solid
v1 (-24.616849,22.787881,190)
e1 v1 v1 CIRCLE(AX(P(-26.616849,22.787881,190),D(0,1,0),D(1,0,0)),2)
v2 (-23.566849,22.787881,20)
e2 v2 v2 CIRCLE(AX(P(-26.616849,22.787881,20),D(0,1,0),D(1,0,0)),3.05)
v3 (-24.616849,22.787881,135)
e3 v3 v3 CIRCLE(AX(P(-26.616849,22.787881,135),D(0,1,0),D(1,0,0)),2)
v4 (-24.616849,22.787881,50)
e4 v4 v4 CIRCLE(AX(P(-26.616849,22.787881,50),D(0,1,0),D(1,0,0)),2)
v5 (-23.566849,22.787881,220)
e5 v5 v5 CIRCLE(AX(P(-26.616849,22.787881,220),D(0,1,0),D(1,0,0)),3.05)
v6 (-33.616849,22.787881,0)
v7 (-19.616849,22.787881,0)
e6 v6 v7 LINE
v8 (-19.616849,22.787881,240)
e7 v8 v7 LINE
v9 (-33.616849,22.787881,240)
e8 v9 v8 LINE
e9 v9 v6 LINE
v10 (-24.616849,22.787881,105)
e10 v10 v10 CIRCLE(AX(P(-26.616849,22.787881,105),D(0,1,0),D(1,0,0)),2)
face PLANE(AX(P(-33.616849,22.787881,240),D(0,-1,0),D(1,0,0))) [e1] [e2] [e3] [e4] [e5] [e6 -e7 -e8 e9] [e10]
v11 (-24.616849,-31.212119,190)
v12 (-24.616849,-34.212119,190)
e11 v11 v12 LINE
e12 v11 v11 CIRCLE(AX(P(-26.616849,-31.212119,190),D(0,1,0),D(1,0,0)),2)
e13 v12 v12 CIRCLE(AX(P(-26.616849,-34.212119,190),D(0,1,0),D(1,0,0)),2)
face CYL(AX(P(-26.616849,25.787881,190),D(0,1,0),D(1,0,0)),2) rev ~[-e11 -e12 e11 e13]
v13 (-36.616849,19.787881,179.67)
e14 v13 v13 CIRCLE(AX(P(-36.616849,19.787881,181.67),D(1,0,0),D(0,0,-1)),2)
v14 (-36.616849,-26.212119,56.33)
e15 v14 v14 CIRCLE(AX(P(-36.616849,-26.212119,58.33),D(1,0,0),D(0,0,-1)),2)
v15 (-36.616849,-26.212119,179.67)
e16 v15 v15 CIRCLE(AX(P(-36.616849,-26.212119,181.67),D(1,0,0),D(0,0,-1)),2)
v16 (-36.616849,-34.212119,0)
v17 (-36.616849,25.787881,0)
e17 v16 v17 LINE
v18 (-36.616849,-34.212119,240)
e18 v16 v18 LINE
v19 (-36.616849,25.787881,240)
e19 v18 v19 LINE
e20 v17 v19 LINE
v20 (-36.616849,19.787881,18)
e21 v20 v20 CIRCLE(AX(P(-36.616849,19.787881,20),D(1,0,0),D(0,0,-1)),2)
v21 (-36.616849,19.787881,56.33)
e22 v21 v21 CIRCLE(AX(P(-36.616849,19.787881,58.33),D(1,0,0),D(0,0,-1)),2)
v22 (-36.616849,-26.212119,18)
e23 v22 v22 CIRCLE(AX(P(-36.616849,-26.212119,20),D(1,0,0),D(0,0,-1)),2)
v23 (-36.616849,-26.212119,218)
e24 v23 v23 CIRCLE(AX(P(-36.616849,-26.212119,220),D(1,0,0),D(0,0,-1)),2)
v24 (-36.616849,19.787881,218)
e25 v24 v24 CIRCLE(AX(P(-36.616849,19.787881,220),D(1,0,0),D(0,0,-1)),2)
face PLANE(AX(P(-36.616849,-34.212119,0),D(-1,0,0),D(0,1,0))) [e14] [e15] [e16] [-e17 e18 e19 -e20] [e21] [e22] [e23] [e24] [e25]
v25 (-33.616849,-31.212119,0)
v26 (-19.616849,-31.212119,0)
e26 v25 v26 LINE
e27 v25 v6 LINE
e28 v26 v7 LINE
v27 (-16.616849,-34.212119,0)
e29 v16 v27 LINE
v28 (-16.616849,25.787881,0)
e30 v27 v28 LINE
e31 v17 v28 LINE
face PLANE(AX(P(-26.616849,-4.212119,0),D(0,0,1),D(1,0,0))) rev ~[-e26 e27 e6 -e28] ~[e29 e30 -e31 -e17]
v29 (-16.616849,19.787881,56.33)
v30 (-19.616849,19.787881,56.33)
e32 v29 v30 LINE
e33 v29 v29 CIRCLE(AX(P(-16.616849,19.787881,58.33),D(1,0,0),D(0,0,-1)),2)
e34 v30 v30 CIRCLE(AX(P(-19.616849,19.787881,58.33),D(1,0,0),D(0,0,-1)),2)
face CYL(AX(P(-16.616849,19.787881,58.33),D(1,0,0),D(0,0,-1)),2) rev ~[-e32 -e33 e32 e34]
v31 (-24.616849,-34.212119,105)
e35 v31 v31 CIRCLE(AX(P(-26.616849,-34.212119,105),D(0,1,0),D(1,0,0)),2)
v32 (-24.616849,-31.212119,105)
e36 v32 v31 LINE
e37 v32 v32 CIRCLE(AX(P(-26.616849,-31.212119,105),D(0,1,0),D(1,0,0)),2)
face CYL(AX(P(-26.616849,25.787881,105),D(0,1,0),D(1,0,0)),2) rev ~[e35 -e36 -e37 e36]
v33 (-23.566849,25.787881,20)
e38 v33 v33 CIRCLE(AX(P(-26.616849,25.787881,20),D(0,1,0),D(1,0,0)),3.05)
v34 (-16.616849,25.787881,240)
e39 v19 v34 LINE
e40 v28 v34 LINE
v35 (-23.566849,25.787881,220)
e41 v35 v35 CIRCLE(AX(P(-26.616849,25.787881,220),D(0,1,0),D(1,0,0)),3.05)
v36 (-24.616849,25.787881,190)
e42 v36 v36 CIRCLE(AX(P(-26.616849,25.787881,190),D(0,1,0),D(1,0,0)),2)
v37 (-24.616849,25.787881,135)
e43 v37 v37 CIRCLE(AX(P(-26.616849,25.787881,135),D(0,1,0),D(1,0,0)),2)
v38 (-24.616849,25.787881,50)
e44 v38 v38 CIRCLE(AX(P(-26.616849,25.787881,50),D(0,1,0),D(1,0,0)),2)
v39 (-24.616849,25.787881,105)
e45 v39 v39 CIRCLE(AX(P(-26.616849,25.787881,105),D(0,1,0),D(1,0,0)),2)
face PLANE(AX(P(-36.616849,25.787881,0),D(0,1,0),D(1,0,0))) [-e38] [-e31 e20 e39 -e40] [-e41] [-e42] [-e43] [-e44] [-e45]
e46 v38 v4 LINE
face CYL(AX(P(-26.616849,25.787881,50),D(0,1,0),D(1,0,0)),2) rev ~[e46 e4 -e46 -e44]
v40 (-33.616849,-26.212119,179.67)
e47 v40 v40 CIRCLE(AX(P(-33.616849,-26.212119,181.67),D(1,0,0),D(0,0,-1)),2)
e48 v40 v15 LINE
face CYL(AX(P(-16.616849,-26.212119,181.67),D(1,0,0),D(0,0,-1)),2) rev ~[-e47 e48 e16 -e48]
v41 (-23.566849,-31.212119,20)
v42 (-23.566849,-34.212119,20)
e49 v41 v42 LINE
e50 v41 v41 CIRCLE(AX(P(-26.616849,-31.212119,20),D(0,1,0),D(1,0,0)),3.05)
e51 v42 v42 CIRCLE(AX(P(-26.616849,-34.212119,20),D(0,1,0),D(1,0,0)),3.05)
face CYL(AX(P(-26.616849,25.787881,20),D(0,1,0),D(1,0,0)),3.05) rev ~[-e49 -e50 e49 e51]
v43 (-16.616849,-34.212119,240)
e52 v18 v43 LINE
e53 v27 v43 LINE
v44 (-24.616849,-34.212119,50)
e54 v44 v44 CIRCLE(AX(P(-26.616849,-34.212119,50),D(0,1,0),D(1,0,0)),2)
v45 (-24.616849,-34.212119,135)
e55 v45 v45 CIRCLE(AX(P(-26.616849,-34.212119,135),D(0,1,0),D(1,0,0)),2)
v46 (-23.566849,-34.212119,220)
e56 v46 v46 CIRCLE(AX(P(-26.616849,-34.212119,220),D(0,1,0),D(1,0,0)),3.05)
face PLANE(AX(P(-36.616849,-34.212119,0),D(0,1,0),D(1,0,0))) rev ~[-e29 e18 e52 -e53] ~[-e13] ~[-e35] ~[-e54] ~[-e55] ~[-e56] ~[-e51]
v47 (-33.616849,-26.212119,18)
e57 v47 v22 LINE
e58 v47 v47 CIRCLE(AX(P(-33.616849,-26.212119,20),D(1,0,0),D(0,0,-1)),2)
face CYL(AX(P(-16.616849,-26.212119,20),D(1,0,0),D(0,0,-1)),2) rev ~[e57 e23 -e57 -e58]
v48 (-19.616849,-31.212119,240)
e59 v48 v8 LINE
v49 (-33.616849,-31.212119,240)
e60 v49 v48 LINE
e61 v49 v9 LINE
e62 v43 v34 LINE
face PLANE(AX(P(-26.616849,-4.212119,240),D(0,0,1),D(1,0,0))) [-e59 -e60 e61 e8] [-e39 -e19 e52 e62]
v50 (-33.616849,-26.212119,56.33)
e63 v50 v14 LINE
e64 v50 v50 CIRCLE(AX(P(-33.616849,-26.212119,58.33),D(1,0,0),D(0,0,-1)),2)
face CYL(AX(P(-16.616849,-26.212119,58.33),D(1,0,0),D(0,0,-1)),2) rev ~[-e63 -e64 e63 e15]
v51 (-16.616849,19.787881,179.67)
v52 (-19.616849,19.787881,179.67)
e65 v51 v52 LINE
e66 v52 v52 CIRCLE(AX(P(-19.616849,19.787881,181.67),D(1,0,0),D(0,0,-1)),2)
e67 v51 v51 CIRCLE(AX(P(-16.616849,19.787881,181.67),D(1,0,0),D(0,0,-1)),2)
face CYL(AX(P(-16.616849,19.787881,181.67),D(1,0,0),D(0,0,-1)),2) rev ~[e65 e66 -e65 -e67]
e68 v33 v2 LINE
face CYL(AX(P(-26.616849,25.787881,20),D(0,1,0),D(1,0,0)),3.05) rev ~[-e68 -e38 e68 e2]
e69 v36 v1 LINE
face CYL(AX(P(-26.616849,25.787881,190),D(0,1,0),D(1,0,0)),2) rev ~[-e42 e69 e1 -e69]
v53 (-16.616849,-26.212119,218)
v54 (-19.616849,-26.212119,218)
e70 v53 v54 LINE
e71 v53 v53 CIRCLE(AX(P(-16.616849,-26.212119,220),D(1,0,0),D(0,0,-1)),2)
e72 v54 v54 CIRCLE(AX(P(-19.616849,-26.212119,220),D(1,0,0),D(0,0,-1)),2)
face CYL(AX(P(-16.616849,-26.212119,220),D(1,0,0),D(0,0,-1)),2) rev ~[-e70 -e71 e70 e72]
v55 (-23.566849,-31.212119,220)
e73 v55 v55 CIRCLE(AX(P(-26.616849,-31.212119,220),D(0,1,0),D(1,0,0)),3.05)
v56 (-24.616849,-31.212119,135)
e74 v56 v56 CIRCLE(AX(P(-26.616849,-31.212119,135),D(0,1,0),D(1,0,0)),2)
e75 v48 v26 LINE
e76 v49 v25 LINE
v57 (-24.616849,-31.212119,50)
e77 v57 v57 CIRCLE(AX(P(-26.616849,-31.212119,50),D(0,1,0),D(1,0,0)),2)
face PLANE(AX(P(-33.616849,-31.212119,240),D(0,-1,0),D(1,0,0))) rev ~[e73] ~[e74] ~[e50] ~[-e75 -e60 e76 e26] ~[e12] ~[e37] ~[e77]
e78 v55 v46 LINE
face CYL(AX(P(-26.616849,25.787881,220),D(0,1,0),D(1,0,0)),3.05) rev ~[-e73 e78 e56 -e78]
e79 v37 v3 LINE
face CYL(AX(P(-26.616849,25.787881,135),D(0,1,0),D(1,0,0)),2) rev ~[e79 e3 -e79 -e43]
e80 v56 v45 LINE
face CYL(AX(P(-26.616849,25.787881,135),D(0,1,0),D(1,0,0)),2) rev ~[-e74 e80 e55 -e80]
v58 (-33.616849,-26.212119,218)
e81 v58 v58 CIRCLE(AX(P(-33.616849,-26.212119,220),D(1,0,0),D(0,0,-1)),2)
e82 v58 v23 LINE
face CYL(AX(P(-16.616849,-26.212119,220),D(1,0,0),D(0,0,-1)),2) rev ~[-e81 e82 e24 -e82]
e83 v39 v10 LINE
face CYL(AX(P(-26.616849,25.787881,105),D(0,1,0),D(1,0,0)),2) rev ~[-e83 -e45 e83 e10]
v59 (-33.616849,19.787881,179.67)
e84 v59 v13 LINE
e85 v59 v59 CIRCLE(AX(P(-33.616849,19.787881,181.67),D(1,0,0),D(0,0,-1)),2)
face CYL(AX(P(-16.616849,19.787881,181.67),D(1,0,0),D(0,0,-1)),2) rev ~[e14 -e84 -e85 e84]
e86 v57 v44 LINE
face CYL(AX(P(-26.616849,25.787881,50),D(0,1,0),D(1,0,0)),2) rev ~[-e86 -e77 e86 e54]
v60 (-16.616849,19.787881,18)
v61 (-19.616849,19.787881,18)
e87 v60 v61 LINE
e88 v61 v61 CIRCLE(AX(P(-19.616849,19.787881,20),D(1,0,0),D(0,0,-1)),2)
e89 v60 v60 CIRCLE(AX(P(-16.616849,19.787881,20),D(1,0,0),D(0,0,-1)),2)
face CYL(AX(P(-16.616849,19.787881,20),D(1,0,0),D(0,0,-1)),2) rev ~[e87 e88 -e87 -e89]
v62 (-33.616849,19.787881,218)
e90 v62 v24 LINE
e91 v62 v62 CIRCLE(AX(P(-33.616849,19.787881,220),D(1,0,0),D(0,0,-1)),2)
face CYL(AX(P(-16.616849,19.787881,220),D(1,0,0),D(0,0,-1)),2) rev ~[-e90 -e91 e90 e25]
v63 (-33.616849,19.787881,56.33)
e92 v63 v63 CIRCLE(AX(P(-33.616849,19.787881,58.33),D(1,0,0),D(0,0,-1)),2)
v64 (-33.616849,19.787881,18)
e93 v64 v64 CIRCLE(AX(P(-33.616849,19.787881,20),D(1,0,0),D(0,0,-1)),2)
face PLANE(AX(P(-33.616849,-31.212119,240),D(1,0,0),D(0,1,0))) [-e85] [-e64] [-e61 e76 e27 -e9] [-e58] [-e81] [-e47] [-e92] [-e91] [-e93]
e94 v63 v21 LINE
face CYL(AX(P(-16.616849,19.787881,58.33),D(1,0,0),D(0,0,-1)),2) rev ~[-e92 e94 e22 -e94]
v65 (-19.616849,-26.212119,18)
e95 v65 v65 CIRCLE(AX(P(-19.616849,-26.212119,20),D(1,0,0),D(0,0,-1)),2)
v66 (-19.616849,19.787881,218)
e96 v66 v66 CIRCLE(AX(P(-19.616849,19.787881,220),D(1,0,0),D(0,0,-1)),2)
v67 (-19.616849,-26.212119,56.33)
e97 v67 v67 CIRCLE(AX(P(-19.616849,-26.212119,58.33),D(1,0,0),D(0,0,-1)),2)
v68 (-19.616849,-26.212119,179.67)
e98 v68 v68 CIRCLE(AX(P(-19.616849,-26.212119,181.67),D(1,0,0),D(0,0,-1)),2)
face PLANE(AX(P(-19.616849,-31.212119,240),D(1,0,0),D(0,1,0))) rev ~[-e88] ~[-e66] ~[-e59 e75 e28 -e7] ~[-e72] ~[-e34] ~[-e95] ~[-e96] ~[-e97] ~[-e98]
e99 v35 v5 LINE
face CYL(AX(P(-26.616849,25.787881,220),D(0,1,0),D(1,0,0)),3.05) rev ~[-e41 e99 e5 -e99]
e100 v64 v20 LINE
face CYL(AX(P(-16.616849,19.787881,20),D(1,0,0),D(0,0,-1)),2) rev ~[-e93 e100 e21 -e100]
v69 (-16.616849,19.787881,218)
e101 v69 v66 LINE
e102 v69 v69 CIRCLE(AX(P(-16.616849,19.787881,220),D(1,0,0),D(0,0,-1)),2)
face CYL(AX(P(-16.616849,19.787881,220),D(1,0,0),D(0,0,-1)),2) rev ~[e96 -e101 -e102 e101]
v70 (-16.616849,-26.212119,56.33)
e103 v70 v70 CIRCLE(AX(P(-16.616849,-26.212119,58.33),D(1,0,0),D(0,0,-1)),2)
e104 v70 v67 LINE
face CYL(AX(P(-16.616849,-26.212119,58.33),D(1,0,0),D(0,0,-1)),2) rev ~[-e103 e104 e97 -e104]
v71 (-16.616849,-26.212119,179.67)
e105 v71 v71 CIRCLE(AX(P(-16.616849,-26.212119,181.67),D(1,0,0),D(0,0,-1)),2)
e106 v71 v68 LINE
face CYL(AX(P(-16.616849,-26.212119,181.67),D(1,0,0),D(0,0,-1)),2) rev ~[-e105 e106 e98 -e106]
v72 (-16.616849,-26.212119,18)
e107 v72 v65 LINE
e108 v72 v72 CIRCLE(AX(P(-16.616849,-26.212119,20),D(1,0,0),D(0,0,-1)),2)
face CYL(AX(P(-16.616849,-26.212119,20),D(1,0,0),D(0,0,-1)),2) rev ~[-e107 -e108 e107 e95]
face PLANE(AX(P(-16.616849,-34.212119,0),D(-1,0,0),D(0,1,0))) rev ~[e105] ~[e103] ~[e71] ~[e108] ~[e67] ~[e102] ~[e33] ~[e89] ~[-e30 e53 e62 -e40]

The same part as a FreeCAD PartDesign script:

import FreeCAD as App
import Part
import Sketcher

V = App.Vector
Q = App.Units.Quantity

doc = App.newDocument("Part")
body = doc.addObject("PartDesign::Body", "Body")

sketch1 = body.newObject("Sketcher::SketchObject", "Sketch")
sketch1.AttachmentSupport = (doc.getObject("XY_Plane"), [""])
sketch1.MapMode = "FlatFace"
sketch1.addGeometry([
    Part.LineSegment(V(-37, 26, 0), V(-37, -34, 0)),
    Part.LineSegment(V(-37, -34, 0), V(-17, -34, 0)),
    Part.LineSegment(V(-17, -34, 0), V(-17, 26, 0)),
    Part.LineSegment(V(-17, 26, 0), V(-37, 26, 0)),
], False)
sketch1.addConstraint([
    Sketcher.Constraint("Coincident", 0, 2, 1, 1),
    Sketcher.Constraint("Coincident", 1, 2, 2, 1),
    Sketcher.Constraint("Coincident", 2, 2, 3, 1),
    Sketcher.Constraint("Coincident", 3, 2, 0, 1),
    Sketcher.Constraint("Vertical", 0),
    Sketcher.Constraint("Horizontal", 1),
    Sketcher.Constraint("Vertical", 2),
    Sketcher.Constraint("Horizontal", 3),
    Sketcher.Constraint("DistanceX", 1, 1, 1, 2, Q("20 mm")),
    Sketcher.Constraint("DistanceY", 0, 2, 0, 1, Q("60 mm")),
    Sketcher.Constraint("DistanceX", 0, 2, -1, 1, Q("36.616849 mm")),
    Sketcher.Constraint("DistanceY", 0, 2, -1, 1, Q("34.212119 mm")),
])
pad1 = body.newObject("PartDesign::Pad", "Pad")
pad1.Profile = sketch1
pad1.Length = 240

sketch2 = body.newObject("Sketcher::SketchObject", "Sketch001")
sketch2.AttachmentSupport = (doc.getObject("XY_Plane"), [""])
sketch2.MapMode = "FlatFace"
sketch2.AttachmentOffset = App.Placement(V(0, 0, 240), App.Rotation())
sketch2.addGeometry([
    Part.LineSegment(V(-34, 23, 0), V(-34, -31, 0)),
    Part.LineSegment(V(-34, -31, 0), V(-20, -31, 0)),
    Part.LineSegment(V(-20, -31, 0), V(-20, 23, 0)),
    Part.LineSegment(V(-20, 23, 0), V(-34, 23, 0)),
], False)
sketch2.addConstraint([
    Sketcher.Constraint("Coincident", 0, 2, 1, 1),
    Sketcher.Constraint("Coincident", 1, 2, 2, 1),
    Sketcher.Constraint("Coincident", 2, 2, 3, 1),
    Sketcher.Constraint("Coincident", 3, 2, 0, 1),
    Sketcher.Constraint("Vertical", 0),
    Sketcher.Constraint("Horizontal", 1),
    Sketcher.Constraint("Vertical", 2),
    Sketcher.Constraint("Horizontal", 3),
    Sketcher.Constraint("DistanceX", 1, 1, 1, 2, Q("14 mm")),
    Sketcher.Constraint("DistanceY", 0, 2, 0, 1, Q("54 mm")),
    Sketcher.Constraint("DistanceX", 0, 2, -1, 1, Q("33.616849 mm")),
    Sketcher.Constraint("DistanceY", 0, 2, -1, 1, Q("31.212119 mm")),
])
pocket1 = body.newObject("PartDesign::Pocket", "Pocket")
pocket1.Profile = sketch2
pocket1.Type = "ThroughAll"

sketch3 = body.newObject("Sketcher::SketchObject", "Sketch002")
sketch3.AttachmentSupport = (doc.getObject("YZ_Plane"), [""])
sketch3.MapMode = "FlatFace"
sketch3.AttachmentOffset = App.Placement(V(0, 0, -16.616849), App.Rotation())
sketch3.addGeometry([
    Part.Circle(V(19.8, 220, 0), V(0, 0, 1), 2),
    Part.Circle(V(19.8, 20, 0), V(0, 0, 1), 2),
    Part.Circle(V(19.8, 181.7, 0), V(0, 0, 1), 2),
    Part.Circle(V(-26.2, 220, 0), V(0, 0, 1), 2),
    Part.Circle(V(-26.2, 181.7, 0), V(0, 0, 1), 2),
    Part.Circle(V(-26.2, 20, 0), V(0, 0, 1), 2),
    Part.Circle(V(-26.2, 58.3, 0), V(0, 0, 1), 2),
    Part.Circle(V(19.8, 58.3, 0), V(0, 0, 1), 2),
], False)
sketch3.addConstraint([
    Sketcher.Constraint("Equal", 0, 1),
    Sketcher.Constraint("Equal", 1, 2),
    Sketcher.Constraint("Equal", 2, 3),
    Sketcher.Constraint("Equal", 3, 4),
    Sketcher.Constraint("Equal", 4, 5),
    Sketcher.Constraint("Equal", 5, 6),
    Sketcher.Constraint("Equal", 6, 7),
    Sketcher.Constraint("Horizontal", 0, 3, 3, 3),
    Sketcher.Constraint("Horizontal", 2, 3, 4, 3),
    Sketcher.Constraint("Horizontal", 1, 3, 5, 3),
    Sketcher.Constraint("Horizontal", 6, 3, 7, 3),
    Sketcher.Constraint("Vertical", 0, 3, 1, 3),
    Sketcher.Constraint("Vertical", 1, 3, 2, 3),
    Sketcher.Constraint("Vertical", 3, 3, 4, 3),
    Sketcher.Constraint("Vertical", 4, 3, 5, 3),
    Sketcher.Constraint("Vertical", 5, 3, 6, 3),
    Sketcher.Constraint("Vertical", 2, 3, 7, 3),
    Sketcher.Constraint("Diameter", 0, Q("4 mm")),
    Sketcher.Constraint("DistanceY", -1, 1, 0, 3, Q("220 mm")),
    Sketcher.Constraint("DistanceY", -1, 1, 1, 3, Q("20 mm")),
    Sketcher.Constraint("DistanceX", 3, 3, 0, 3, Q("46 mm")),
    Sketcher.Constraint("DistanceY", -1, 1, 2, 3, Q("181.67 mm")),
    Sketcher.Constraint("DistanceY", -1, 1, 6, 3, Q("58.33 mm")),
    Sketcher.Constraint("DistanceX", -1, 1, 0, 3, Q("19.787881 mm")),
])
pocket2 = body.newObject("PartDesign::Pocket", "Pocket001")
pocket2.Profile = sketch3
pocket2.Length = 240

sketch4 = body.newObject("Sketcher::SketchObject", "Sketch003")
sketch4.AttachmentSupport = (doc.getObject("XZ_Plane"), [""])
sketch4.MapMode = "FlatFace"
sketch4.AttachmentOffset = App.Placement(V(0, 0, -25.787881), App.Rotation())
sketch4.addGeometry([
    Part.Circle(V(-26.6, 220, 0), V(0, 0, 1), 3),
    Part.Circle(V(-26.6, 190, 0), V(0, 0, 1), 2),
    Part.Circle(V(-26.6, 135, 0), V(0, 0, 1), 2),
    Part.Circle(V(-26.6, 50, 0), V(0, 0, 1), 2),
    Part.Circle(V(-26.6, 20, 0), V(0, 0, 1), 3),
    Part.Circle(V(-26.6, 105, 0), V(0, 0, 1), 2),
], False)
sketch4.addConstraint([
    Sketcher.Constraint("Equal", 1, 2),
    Sketcher.Constraint("Equal", 2, 3),
    Sketcher.Constraint("Equal", 0, 4),
    Sketcher.Constraint("Equal", 3, 5),
    Sketcher.Constraint("Vertical", 0, 3, 1, 3),
    Sketcher.Constraint("Vertical", 1, 3, 2, 3),
    Sketcher.Constraint("Vertical", 2, 3, 3, 3),
    Sketcher.Constraint("Vertical", 3, 3, 4, 3),
    Sketcher.Constraint("Vertical", 4, 3, 5, 3),
    Sketcher.Constraint("Diameter", 1, Q("4 mm")),
    Sketcher.Constraint("Diameter", 0, Q("6.1 mm")),
    Sketcher.Constraint("DistanceY", -1, 1, 0, 3, Q("220 mm")),
    Sketcher.Constraint("DistanceY", -1, 1, 1, 3, Q("190 mm")),
    Sketcher.Constraint("DistanceY", -1, 1, 2, 3, Q("135 mm")),
    Sketcher.Constraint("DistanceY", -1, 1, 3, 3, Q("50 mm")),
    Sketcher.Constraint("DistanceY", -1, 1, 4, 3, Q("20 mm")),
    Sketcher.Constraint("DistanceY", -1, 1, 5, 3, Q("105 mm")),
    Sketcher.Constraint("DistanceX", 0, 3, -1, 1, Q("26.616849 mm")),
])
pocket3 = body.newObject("PartDesign::Pocket", "Pocket002")
pocket3.Profile = sketch4
pocket3.Type = "ThroughAll"
pocket3.Reversed = True

doc.recompute()
